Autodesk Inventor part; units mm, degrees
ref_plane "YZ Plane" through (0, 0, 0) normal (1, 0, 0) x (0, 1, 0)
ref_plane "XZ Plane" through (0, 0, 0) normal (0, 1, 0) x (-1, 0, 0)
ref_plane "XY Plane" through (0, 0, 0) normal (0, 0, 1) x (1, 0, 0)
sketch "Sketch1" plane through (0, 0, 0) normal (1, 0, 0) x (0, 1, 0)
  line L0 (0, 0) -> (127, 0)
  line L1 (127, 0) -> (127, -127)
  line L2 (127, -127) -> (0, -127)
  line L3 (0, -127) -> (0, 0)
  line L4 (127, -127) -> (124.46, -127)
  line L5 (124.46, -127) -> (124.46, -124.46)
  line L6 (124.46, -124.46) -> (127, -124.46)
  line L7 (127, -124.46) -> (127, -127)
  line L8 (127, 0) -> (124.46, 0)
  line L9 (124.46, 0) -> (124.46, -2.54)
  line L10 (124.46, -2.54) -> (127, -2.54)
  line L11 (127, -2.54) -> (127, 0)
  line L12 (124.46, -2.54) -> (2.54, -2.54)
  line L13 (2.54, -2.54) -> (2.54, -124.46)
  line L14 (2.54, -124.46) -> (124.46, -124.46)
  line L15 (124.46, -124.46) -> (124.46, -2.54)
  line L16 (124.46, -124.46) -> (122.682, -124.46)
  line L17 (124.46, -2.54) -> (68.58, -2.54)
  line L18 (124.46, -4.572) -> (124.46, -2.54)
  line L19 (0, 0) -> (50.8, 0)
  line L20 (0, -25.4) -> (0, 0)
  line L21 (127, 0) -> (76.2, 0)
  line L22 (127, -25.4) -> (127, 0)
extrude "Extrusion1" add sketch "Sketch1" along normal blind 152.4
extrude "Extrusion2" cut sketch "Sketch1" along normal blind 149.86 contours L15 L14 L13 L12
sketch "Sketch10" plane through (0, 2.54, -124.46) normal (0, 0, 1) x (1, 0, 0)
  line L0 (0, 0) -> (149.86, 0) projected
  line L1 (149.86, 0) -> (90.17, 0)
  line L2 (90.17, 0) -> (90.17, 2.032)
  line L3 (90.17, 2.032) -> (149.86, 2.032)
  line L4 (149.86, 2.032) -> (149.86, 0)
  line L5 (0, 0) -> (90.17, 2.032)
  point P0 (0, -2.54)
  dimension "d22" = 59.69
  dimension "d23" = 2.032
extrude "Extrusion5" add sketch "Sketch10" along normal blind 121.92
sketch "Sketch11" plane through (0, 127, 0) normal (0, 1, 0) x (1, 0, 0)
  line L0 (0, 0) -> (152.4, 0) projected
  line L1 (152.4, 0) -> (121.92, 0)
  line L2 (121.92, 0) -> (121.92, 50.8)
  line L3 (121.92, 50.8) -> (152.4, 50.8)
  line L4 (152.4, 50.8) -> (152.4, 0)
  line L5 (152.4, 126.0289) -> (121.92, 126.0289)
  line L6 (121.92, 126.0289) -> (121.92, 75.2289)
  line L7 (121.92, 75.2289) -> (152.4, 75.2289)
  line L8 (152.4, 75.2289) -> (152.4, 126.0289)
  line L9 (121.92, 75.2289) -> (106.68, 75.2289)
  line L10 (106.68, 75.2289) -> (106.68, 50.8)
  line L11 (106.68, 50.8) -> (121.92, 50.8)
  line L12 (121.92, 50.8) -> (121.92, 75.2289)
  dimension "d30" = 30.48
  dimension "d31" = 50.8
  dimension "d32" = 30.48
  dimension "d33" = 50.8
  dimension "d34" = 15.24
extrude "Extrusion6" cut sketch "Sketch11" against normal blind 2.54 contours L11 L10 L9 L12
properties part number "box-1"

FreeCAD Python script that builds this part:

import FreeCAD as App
import Part
import Sketcher
from FreeCAD import Vector
Q = App.Units.Quantity

doc = App.newDocument("Part")
body = doc.addObject("PartDesign::Body", "Body")

# Sketch on YZ plane
sketch1 = body.newObject("Sketcher::SketchObject", "Sketch")
sketch1.AttachmentSupport = (doc.getObject("YZ_Plane"), [""])
sketch1.MapMode = "FlatFace"
sketch1.addGeometry([
    Part.LineSegment(Vector(0, 0, 0), Vector(0, -127, 0)),
    Part.LineSegment(Vector(0, -127, 0), Vector(127, -127, 0)),
    Part.LineSegment(Vector(127, -127, 0), Vector(127, 0, 0)),
    Part.LineSegment(Vector(127, 0, 0), Vector(0, 0, 0)),
], False)
sketch1.addConstraint([
    Sketcher.Constraint("Coincident", 0, 2, 1, 1),
    Sketcher.Constraint("Coincident", 1, 2, 2, 1),
    Sketcher.Constraint("Coincident", 2, 2, 3, 1),
    Sketcher.Constraint("Coincident", 3, 2, 0, 1),
    Sketcher.Constraint("Vertical", 0),
    Sketcher.Constraint("Horizontal", 1),
    Sketcher.Constraint("Vertical", 2),
    Sketcher.Constraint("Horizontal", 3),
    Sketcher.Constraint("Coincident", 3, 2, -1, 1),
    Sketcher.Constraint("Equal", 3, 0),
    Sketcher.Constraint("DistanceX", 1, 1, 1, 2, Q("5 in")),
])
pad1 = body.newObject("PartDesign::Pad", "Pad")
pad1.Profile = sketch1
pad1.Length = Q("6 in")

# Sketch on YZ plane
sketch2 = body.newObject("Sketcher::SketchObject", "Sketch001")
sketch2.AttachmentSupport = (doc.getObject("YZ_Plane"), [""])
sketch2.MapMode = "FlatFace"
sketch2.addGeometry([
    Part.LineSegment(Vector(124, -124, 0), Vector(124, -3, 0)),
    Part.LineSegment(Vector(124, -3, 0), Vector(3, -3, 0)),
    Part.LineSegment(Vector(3, -3, 0), Vector(3, -124, 0)),
    Part.LineSegment(Vector(3, -124, 0), Vector(124, -124, 0)),
], False)
sketch2.addConstraint([
    Sketcher.Constraint("Coincident", 0, 2, 1, 1),
    Sketcher.Constraint("Coincident", 1, 2, 2, 1),
    Sketcher.Constraint("Coincident", 2, 2, 3, 1),
    Sketcher.Constraint("Coincident", 3, 2, 0, 1),
    Sketcher.Constraint("Vertical", 0),
    Sketcher.Constraint("Horizontal", 1),
    Sketcher.Constraint("Vertical", 2),
    Sketcher.Constraint("Horizontal", 3),
    Sketcher.Constraint("Equal", 3, 0),
    Sketcher.Constraint("DistanceX", 1, 2, 1, 1, Q("4.8 in")),
    Sketcher.Constraint("DistanceX", -1, 1, 0, 2, Q("4.9 in")),
    Sketcher.Constraint("DistanceY", 0, 2, -1, 1, Q("0.1 in")),
])
pocket1 = body.newObject("PartDesign::Pocket", "Pocket")
pocket1.Profile = sketch2
pocket1.Length = Q("5.9 in")
pocket1.Reversed = True

# Sketch on XY plane
sketch3 = body.newObject("Sketcher::SketchObject", "Sketch002")
sketch3.AttachmentSupport = (doc.getObject("XY_Plane"), [""])
sketch3.MapMode = "FlatFace"
sketch3.AttachmentOffset = App.Placement(Vector(0, 0, -4.9 * 25.4), App.Rotation())
sketch3.addGeometry([
    Part.LineSegment(Vector(90.2, 4.6, 0), Vector(0, 2.5, 0)),
    Part.LineSegment(Vector(0, 2.5, 0), Vector(149.9, 2.5, 0)),
    Part.LineSegment(Vector(149.9, 2.5, 0), Vector(149.9, 4.6, 0)),
    Part.LineSegment(Vector(149.9, 4.6, 0), Vector(90.2, 4.6, 0)),
], False)
sketch3.addConstraint([
    Sketcher.Constraint("Coincident", 0, 2, 1, 1),
    Sketcher.Constraint("Coincident", 1, 2, 2, 1),
    Sketcher.Constraint("Coincident", 2, 2, 3, 1),
    Sketcher.Constraint("Coincident", 3, 2, 0, 1),
    Sketcher.Constraint("Horizontal", 1),
    Sketcher.Constraint("Vertical", 2),
    Sketcher.Constraint("Horizontal", 3),
    Sketcher.Constraint("PointOnObject", 0, 2, -2),
    Sketcher.Constraint("DistanceX", 3, 2, 3, 1, Q("2.35 in")),
    Sketcher.Constraint("DistanceY", 2, 1, 2, 2, Q("0.08 in")),
    Sketcher.Constraint("DistanceX", 1, 1, 1, 2, Q("5.9 in")),
    Sketcher.Constraint("DistanceY", -1, 1, 0, 2, Q("0.1 in")),
])
pad2 = body.newObject("PartDesign::Pad", "Pad001")
pad2.Profile = sketch3
pad2.Length = Q("4.8 in")

# Sketch on XZ plane
sketch4 = body.newObject("Sketcher::SketchObject", "Sketch003")
sketch4.AttachmentSupport = (doc.getObject("XZ_Plane"), [""])
sketch4.MapMode = "FlatFace"
sketch4.AttachmentOffset = App.Placement(Vector(0, 0, -5 * 25.4), App.Rotation())
sketch4.addGeometry([
    Part.LineSegment(Vector(107, -51, 0), Vector(122, -51, 0)),
    Part.LineSegment(Vector(122, -51, 0), Vector(122, -75, 0)),
    Part.LineSegment(Vector(122, -75, 0), Vector(107, -75, 0)),
    Part.LineSegment(Vector(107, -75, 0), Vector(107, -51, 0)),
], False)
sketch4.addConstraint([
    Sketcher.Constraint("Coincident", 0, 2, 1, 1),
    Sketcher.Constraint("Coincident", 1, 2, 2, 1),
    Sketcher.Constraint("Coincident", 2, 2, 3, 1),
    Sketcher.Constraint("Coincident", 3, 2, 0, 1),
    Sketcher.Constraint("Horizontal", 0),
    Sketcher.Constraint("Vertical", 1),
    Sketcher.Constraint("Horizontal", 2),
    Sketcher.Constraint("Vertical", 3),
    Sketcher.Constraint("DistanceX", 0, 1, 0, 2, Q("0.6 in")),
    Sketcher.Constraint("DistanceY", 0, 2, -1, 1, Q("2 in")),
    Sketcher.Constraint("DistanceX", -1, 1, 0, 2, Q("4.8 in")),
    Sketcher.Constraint("DistanceY", 1, 2, 1, 1, 24.429),
])
pocket2 = body.newObject("PartDesign::Pocket", "Pocket001")
pocket2.Profile = sketch4
pocket2.Length = Q("0.1 in")
pocket2.Reversed = True

doc.recompute()
